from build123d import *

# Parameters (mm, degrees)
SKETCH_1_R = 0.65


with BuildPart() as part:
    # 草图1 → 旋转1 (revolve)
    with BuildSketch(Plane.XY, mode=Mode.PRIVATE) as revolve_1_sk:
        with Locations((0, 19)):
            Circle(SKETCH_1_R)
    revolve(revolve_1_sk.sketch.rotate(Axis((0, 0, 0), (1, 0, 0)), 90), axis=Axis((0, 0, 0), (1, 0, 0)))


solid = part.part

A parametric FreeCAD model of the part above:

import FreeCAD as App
import Part
import Sketcher
from FreeCAD import Vector

doc = App.newDocument("Part")
body = doc.addObject("PartDesign::Body", "Body")

sketch1 = body.newObject("Sketcher::SketchObject", "Sketch")
sketch1.AttachmentSupport = (doc.getObject("XY_Plane"), [""])
sketch1.MapMode = "FlatFace"
sketch1.addGeometry(Part.Circle(Vector(0, 19, 0), Vector(0, 0, 1), 0.65), False)
sketch1.addConstraint([
    Sketcher.Constraint("PointOnObject", 0, 3, -2),
    Sketcher.Constraint("Diameter", 0, 1.3),
    Sketcher.Constraint("DistanceY", -1, 1, 0, 3, 19.0),
])
revolution = body.newObject("PartDesign::Revolution", "Revolution")
revolution.Profile = sketch1
revolution.ReferenceAxis = (sketch1, ["H_Axis"])
revolution.Angle = 360

doc.recompute()
